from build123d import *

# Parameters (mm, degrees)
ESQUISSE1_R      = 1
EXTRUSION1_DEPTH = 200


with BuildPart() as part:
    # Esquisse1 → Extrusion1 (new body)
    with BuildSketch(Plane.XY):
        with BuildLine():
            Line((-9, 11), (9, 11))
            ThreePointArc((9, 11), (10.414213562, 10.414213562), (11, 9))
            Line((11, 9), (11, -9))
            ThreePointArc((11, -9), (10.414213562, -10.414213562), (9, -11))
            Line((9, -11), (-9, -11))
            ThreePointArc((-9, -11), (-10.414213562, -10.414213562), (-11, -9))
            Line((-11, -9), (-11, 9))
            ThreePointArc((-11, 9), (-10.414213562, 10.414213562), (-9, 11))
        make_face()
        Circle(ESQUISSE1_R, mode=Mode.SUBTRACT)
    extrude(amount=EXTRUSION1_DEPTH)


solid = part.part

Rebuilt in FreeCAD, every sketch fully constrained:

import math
import FreeCAD as App
import Part
import Sketcher
from FreeCAD import Vector
Q = App.Units.Quantity

doc = App.newDocument("Part")
body = doc.addObject("PartDesign::Body", "Body")

# Sketch on XY plane
sketch1 = body.newObject("Sketcher::SketchObject", "Sketch")
sketch1.AttachmentSupport = (doc.getObject("XY_Plane"), [""])
sketch1.MapMode = "FlatFace"
sketch1.addGeometry(Part.LineSegment(Vector(9, 11, 0), Vector(-9, 11, 0)), False)
sketch1.addGeometry(Part.ArcOfCircle(Part.Circle(Vector(-9, 9, 0), Vector(0, 0, 1), 2), math.radians(90), math.radians(180)), False)
sketch1.addGeometry(Part.LineSegment(Vector(-11, 9, 0), Vector(-11, -9, 0)), False)
sketch1.addGeometry(Part.ArcOfCircle(Part.Circle(Vector(-9, -9, 0), Vector(0, 0, 1), 2), math.radians(-180), math.radians(-90)), False)
sketch1.addGeometry(Part.LineSegment(Vector(-9, -11, 0), Vector(9, -11, 0)), False)
sketch1.addGeometry(Part.ArcOfCircle(Part.Circle(Vector(9, -9, 0), Vector(0, 0, 1), 2), math.radians(-90), math.radians(0)), False)
sketch1.addGeometry(Part.LineSegment(Vector(11, -9, 0), Vector(11, 9, 0)), False)
sketch1.addGeometry(Part.ArcOfCircle(Part.Circle(Vector(9, 9, 0), Vector(0, 0, 1), 2), math.radians(0), math.radians(90)), False)
sketch1.addGeometry(Part.Circle(Vector(0, 0, 0), Vector(0, 0, 1), 1), False)
sketch1.addConstraint(Sketcher.Constraint("Tangent", 0, 2, 1, 1))
sketch1.addConstraint(Sketcher.Constraint("Tangent", 1, 2, 2, 1))
sketch1.addConstraint(Sketcher.Constraint("Tangent", 2, 2, 3, 1))
sketch1.addConstraint(Sketcher.Constraint("Tangent", 3, 2, 4, 1))
sketch1.addConstraint(Sketcher.Constraint("Tangent", 4, 2, 5, 1))
sketch1.addConstraint(Sketcher.Constraint("Tangent", 5, 2, 6, 1))
sketch1.addConstraint(Sketcher.Constraint("Tangent", 6, 2, 7, 1))
sketch1.addConstraint(Sketcher.Constraint("Tangent", 7, 2, 0, 1))
sketch1.addConstraint(Sketcher.Constraint("Horizontal", 0))
sketch1.addConstraint(Sketcher.Constraint("Vertical", 2))
sketch1.addConstraint(Sketcher.Constraint("Horizontal", 4))
sketch1.addConstraint(Sketcher.Constraint("Vertical", 6))
sketch1.addConstraint(Sketcher.Constraint("Coincident", 8, 3, -1, 1))
sketch1.addConstraint(Sketcher.Constraint("Equal", 1, 3))
sketch1.addConstraint(Sketcher.Constraint("Equal", 3, 5))
sketch1.addConstraint(Sketcher.Constraint("Equal", 5, 7))
sketch1.addConstraint(Sketcher.Constraint("Symmetric", 1, 3, 5, 3, -1, 1))
sketch1.addConstraint(Sketcher.Constraint("Equal", 4, 2))
sketch1.addConstraint(Sketcher.Constraint("Diameter", 8, Q("2 mm")))
sketch1.addConstraint(Sketcher.Constraint("Radius", 1, Q("2 mm")))
sketch1.addConstraint(Sketcher.Constraint("DistanceX", 0, 2, 0, 1, Q("18 mm")))
pad1 = body.newObject("PartDesign::Pad", "Pad")
pad1.Profile = sketch1
pad1.Length = 200

doc.recompute()
